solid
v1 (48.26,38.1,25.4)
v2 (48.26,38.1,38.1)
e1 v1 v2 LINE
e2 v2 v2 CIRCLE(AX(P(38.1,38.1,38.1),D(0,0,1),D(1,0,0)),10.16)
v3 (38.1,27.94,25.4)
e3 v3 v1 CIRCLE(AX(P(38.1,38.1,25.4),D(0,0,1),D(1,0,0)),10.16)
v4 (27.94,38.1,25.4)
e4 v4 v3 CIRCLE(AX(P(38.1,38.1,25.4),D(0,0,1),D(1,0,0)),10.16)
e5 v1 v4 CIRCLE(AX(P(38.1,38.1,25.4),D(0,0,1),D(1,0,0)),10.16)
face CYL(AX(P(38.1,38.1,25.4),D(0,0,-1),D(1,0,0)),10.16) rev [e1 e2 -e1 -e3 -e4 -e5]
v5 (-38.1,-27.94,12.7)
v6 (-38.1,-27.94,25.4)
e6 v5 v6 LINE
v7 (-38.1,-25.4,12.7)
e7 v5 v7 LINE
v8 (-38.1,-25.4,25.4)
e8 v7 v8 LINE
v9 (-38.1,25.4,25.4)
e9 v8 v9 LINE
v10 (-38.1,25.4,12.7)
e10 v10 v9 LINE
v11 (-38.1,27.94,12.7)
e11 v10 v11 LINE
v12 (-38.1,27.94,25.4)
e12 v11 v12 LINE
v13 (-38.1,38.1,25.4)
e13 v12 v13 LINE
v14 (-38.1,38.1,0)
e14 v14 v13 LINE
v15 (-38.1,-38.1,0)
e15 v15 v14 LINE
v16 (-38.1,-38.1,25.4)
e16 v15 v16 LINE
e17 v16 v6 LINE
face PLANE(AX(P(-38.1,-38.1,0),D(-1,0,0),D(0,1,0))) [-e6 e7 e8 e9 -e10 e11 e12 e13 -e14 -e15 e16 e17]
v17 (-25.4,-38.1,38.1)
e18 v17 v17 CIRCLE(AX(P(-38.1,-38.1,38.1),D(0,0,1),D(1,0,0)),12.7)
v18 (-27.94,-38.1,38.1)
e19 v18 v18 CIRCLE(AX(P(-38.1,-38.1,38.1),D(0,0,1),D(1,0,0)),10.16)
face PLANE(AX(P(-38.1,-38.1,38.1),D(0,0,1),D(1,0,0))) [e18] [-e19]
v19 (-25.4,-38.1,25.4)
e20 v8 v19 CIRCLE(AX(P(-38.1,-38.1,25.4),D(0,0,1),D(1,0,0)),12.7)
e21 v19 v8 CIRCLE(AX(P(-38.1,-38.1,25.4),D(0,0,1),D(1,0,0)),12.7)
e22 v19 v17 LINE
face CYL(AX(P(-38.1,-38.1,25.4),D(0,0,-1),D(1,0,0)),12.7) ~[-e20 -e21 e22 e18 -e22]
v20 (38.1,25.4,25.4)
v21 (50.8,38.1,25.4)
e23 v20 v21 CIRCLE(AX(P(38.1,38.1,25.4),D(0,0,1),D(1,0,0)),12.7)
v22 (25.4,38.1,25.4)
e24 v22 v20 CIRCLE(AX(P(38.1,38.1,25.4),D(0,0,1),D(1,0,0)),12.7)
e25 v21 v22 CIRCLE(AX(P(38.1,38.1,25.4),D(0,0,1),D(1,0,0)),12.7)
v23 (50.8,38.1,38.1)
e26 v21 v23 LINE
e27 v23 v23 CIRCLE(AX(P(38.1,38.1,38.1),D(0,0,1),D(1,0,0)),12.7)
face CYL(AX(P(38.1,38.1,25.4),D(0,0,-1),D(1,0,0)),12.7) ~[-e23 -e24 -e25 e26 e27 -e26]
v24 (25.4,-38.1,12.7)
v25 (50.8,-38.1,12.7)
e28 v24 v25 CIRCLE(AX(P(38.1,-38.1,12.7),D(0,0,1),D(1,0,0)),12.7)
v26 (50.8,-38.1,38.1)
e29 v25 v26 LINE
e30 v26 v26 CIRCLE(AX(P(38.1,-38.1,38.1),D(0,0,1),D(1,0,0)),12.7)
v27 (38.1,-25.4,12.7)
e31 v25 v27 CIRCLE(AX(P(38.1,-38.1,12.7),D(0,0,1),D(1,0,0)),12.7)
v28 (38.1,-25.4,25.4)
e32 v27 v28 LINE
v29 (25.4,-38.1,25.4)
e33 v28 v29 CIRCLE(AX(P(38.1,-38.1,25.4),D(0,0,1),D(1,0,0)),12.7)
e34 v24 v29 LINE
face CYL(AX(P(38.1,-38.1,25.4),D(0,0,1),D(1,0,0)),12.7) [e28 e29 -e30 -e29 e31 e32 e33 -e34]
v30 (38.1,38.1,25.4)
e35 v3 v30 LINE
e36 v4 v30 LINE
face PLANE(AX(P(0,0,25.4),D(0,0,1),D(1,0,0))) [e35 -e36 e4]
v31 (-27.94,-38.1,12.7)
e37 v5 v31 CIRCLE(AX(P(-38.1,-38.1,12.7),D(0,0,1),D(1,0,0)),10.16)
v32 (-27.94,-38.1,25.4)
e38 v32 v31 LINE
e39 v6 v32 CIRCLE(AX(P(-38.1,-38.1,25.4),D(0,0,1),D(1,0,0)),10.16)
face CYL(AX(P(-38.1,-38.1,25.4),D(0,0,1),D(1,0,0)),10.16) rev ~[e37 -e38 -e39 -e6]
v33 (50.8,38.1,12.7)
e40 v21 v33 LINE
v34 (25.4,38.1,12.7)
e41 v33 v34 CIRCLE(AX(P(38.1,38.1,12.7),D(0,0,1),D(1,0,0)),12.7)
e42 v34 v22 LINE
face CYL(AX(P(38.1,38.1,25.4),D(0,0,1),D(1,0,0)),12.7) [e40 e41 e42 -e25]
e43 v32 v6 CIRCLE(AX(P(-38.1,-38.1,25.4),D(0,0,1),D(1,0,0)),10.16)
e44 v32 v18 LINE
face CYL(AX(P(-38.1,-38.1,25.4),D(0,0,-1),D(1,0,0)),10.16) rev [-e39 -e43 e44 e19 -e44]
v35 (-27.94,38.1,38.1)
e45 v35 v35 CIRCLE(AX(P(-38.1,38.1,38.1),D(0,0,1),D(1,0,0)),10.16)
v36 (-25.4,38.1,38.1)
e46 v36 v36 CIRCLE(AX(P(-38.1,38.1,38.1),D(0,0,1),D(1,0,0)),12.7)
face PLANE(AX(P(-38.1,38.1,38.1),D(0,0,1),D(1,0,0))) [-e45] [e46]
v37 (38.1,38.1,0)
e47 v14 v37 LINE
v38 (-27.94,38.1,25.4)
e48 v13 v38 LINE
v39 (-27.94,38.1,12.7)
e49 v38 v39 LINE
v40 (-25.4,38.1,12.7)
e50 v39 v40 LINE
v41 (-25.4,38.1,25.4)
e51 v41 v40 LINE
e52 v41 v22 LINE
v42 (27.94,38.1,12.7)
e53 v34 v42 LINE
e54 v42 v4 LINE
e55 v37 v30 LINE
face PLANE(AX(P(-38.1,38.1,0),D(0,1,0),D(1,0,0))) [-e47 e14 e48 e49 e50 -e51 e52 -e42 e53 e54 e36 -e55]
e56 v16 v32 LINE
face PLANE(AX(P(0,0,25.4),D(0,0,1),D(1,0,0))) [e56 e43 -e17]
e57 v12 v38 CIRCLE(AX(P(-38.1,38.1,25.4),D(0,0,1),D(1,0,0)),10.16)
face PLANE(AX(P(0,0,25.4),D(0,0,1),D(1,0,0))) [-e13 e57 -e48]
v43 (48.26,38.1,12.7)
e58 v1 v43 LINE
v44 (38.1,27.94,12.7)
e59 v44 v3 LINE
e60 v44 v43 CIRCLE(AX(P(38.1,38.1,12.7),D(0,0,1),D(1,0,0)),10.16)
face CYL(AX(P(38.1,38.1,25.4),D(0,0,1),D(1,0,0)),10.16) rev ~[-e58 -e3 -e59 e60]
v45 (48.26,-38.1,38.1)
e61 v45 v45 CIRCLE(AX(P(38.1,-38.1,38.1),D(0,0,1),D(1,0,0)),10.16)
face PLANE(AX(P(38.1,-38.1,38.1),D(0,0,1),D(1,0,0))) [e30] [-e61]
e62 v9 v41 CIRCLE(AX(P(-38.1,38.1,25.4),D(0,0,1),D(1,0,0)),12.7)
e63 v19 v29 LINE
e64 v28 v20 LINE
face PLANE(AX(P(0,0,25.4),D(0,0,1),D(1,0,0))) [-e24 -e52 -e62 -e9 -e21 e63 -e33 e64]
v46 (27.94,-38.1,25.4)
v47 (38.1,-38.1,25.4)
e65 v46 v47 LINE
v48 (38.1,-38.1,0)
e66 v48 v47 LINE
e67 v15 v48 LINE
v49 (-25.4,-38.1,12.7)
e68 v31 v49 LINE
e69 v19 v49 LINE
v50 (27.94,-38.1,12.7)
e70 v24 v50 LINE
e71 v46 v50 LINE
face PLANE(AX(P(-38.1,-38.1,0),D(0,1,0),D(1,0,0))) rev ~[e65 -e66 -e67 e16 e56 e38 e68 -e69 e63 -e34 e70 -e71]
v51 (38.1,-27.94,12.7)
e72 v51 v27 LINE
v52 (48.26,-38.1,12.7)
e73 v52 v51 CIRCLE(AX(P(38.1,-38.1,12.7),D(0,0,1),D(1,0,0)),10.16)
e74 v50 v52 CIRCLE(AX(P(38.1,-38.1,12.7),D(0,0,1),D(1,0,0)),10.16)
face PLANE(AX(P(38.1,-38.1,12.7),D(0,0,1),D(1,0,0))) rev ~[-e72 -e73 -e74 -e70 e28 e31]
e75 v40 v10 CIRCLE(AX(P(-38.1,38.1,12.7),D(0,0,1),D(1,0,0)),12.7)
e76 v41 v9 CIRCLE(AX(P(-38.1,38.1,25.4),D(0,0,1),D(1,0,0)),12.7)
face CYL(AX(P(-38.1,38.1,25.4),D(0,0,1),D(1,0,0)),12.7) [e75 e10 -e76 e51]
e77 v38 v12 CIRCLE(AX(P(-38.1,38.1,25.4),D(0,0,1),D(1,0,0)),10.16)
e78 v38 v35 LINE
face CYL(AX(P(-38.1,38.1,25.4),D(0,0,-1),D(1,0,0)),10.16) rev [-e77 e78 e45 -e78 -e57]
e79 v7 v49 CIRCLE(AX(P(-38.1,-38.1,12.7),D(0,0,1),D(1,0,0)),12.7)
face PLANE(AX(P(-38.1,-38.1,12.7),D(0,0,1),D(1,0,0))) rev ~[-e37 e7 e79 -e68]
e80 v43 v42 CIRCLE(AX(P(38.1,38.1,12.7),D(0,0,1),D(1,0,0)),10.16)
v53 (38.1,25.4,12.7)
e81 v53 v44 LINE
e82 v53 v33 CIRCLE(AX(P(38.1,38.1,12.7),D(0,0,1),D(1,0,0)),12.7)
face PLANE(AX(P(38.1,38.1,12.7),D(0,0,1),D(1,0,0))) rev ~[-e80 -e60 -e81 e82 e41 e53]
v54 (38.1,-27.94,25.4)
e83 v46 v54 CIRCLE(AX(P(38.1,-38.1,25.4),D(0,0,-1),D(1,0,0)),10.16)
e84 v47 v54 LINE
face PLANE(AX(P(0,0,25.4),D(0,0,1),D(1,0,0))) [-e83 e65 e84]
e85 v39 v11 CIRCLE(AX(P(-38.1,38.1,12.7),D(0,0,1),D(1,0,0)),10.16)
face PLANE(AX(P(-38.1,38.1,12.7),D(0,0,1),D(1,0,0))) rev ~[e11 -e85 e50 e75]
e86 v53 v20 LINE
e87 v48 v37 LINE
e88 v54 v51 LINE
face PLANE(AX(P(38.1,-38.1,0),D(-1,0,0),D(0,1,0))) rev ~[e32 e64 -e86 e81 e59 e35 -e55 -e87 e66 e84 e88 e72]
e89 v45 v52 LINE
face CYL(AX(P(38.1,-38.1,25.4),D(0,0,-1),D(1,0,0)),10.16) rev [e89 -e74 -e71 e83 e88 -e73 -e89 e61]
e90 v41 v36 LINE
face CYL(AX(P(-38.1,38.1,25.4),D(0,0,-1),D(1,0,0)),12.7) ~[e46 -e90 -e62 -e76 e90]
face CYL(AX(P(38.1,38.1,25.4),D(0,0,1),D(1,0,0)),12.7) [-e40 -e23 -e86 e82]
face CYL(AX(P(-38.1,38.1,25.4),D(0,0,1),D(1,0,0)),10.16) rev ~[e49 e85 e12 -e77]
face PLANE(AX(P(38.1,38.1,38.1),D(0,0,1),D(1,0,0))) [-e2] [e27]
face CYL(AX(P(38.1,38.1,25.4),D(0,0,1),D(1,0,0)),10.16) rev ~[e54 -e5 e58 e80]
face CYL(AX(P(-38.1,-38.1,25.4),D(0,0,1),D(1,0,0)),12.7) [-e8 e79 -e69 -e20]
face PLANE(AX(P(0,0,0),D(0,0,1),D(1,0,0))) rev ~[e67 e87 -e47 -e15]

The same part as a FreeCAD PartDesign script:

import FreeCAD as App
import Part
import Sketcher

V = App.Vector
Q = App.Units.Quantity


def add_polygon(sketch, points):
    """Adds a closed chain of lines whose ends are joined by coincident constraints."""
    first, n = sketch.GeometryCount, len(points)
    for a, b in zip(points, points[1:] + points[:1]):
        sketch.addGeometry(Part.LineSegment(App.Vector(*a, 0), App.Vector(*b, 0)), False)
    for i in range(n):
        sketch.addConstraint(Sketcher.Constraint("Coincident", first + i, 2, first + (i + 1) % n, 1))

doc = App.newDocument("Part")
body = doc.addObject("PartDesign::Body", "Body")

# Sketch on XY plane
sketch1 = doc.addObject("Sketcher::SketchObject", "Sketch")
body.addObject(sketch1)
sketch1.AttachmentSupport = (doc.XY_Plane, [""])
sketch1.MapMode = "FlatFace"
add_polygon(sketch1, [(-38, 38), (-38, -38), (38, -38), (38, 38)])  # lines 0-3
sketch1.addConstraint([
    Sketcher.Constraint("Vertical", 0),
    Sketcher.Constraint("Horizontal", 1),
    Sketcher.Constraint("Vertical", 2),
    Sketcher.Constraint("Horizontal", 3),
    Sketcher.Constraint("Symmetric", 0, 2, 2, 2, -1, 1),
    Sketcher.Constraint("Equal", 3, 0),
    Sketcher.Constraint("DistanceX", 1, 1, 1, 2, Q("3 in")),
])
pad1 = doc.addObject("PartDesign::Pad", "Pad")
body.addObject(pad1)
pad1.Profile = sketch1
pad1.Length = Q("1 in")

# Sketch on XY plane
sketch2 = doc.addObject("Sketcher::SketchObject", "Sketch001")
body.addObject(sketch2)
sketch2.AttachmentSupport = (doc.XY_Plane, [""])
sketch2.MapMode = "FlatFace"
sketch2.AttachmentOffset = App.Placement(V(0, 0, 1 * 25.4), App.Rotation())
sketch2.addGeometry([
    Part.Circle(V(-38, 38, 0), V(0, 0, 1), 13),  # 0
    Part.Circle(V(-38, 38, 0), V(0, 0, 1), 10),  # 1
    Part.Circle(V(38, 38, 0), V(0, 0, 1), 13),  # 2
    Part.Circle(V(38, 38, 0), V(0, 0, 1), 10),  # 3
    Part.Circle(V(-38, -38, 0), V(0, 0, 1), 13),  # 4
    Part.Circle(V(-38, -38, 0), V(0, 0, 1), 10),  # 5
    Part.Circle(V(38, -38, 0), V(0, 0, 1), 13),  # 6
    Part.Circle(V(38, -38, 0), V(0, 0, 1), 10),  # 7
], False)
sketch2.addConstraint([
    Sketcher.Constraint("Coincident", 1, 3, 0, 3),
    Sketcher.Constraint("Coincident", 3, 3, 2, 3),
    Sketcher.Constraint("Coincident", 5, 3, 4, 3),
    Sketcher.Constraint("Coincident", 7, 3, 6, 3),
    Sketcher.Constraint("Equal", 0, 2),
    Sketcher.Constraint("Equal", 1, 3),
    Sketcher.Constraint("Equal", 2, 4),
    Sketcher.Constraint("Equal", 3, 5),
    Sketcher.Constraint("Equal", 4, 6),
    Sketcher.Constraint("Equal", 5, 7),
    Sketcher.Constraint("Symmetric", 2, 3, 4, 3, -1, 1),
    Sketcher.Constraint("Symmetric", 0, 3, 6, 3, -1, 1),
    Sketcher.Constraint("Symmetric", 0, 3, 2, 3, -2),
    Sketcher.Constraint("Diameter", 0, Q("1 in")),
    Sketcher.Constraint("Diameter", 1, Q("0.8 in")),
    Sketcher.Constraint("DistanceX", 0, 3, 2, 3, Q("3 in")),
    Sketcher.Constraint("DistanceY", 4, 3, 0, 3, Q("3 in")),
])
pad2 = doc.addObject("PartDesign::Pad", "Pad001")
body.addObject(pad2)
pad2.Profile = sketch2
pad2.Length = Q("1 in")
pad2.Midplane = True

doc.recompute()
